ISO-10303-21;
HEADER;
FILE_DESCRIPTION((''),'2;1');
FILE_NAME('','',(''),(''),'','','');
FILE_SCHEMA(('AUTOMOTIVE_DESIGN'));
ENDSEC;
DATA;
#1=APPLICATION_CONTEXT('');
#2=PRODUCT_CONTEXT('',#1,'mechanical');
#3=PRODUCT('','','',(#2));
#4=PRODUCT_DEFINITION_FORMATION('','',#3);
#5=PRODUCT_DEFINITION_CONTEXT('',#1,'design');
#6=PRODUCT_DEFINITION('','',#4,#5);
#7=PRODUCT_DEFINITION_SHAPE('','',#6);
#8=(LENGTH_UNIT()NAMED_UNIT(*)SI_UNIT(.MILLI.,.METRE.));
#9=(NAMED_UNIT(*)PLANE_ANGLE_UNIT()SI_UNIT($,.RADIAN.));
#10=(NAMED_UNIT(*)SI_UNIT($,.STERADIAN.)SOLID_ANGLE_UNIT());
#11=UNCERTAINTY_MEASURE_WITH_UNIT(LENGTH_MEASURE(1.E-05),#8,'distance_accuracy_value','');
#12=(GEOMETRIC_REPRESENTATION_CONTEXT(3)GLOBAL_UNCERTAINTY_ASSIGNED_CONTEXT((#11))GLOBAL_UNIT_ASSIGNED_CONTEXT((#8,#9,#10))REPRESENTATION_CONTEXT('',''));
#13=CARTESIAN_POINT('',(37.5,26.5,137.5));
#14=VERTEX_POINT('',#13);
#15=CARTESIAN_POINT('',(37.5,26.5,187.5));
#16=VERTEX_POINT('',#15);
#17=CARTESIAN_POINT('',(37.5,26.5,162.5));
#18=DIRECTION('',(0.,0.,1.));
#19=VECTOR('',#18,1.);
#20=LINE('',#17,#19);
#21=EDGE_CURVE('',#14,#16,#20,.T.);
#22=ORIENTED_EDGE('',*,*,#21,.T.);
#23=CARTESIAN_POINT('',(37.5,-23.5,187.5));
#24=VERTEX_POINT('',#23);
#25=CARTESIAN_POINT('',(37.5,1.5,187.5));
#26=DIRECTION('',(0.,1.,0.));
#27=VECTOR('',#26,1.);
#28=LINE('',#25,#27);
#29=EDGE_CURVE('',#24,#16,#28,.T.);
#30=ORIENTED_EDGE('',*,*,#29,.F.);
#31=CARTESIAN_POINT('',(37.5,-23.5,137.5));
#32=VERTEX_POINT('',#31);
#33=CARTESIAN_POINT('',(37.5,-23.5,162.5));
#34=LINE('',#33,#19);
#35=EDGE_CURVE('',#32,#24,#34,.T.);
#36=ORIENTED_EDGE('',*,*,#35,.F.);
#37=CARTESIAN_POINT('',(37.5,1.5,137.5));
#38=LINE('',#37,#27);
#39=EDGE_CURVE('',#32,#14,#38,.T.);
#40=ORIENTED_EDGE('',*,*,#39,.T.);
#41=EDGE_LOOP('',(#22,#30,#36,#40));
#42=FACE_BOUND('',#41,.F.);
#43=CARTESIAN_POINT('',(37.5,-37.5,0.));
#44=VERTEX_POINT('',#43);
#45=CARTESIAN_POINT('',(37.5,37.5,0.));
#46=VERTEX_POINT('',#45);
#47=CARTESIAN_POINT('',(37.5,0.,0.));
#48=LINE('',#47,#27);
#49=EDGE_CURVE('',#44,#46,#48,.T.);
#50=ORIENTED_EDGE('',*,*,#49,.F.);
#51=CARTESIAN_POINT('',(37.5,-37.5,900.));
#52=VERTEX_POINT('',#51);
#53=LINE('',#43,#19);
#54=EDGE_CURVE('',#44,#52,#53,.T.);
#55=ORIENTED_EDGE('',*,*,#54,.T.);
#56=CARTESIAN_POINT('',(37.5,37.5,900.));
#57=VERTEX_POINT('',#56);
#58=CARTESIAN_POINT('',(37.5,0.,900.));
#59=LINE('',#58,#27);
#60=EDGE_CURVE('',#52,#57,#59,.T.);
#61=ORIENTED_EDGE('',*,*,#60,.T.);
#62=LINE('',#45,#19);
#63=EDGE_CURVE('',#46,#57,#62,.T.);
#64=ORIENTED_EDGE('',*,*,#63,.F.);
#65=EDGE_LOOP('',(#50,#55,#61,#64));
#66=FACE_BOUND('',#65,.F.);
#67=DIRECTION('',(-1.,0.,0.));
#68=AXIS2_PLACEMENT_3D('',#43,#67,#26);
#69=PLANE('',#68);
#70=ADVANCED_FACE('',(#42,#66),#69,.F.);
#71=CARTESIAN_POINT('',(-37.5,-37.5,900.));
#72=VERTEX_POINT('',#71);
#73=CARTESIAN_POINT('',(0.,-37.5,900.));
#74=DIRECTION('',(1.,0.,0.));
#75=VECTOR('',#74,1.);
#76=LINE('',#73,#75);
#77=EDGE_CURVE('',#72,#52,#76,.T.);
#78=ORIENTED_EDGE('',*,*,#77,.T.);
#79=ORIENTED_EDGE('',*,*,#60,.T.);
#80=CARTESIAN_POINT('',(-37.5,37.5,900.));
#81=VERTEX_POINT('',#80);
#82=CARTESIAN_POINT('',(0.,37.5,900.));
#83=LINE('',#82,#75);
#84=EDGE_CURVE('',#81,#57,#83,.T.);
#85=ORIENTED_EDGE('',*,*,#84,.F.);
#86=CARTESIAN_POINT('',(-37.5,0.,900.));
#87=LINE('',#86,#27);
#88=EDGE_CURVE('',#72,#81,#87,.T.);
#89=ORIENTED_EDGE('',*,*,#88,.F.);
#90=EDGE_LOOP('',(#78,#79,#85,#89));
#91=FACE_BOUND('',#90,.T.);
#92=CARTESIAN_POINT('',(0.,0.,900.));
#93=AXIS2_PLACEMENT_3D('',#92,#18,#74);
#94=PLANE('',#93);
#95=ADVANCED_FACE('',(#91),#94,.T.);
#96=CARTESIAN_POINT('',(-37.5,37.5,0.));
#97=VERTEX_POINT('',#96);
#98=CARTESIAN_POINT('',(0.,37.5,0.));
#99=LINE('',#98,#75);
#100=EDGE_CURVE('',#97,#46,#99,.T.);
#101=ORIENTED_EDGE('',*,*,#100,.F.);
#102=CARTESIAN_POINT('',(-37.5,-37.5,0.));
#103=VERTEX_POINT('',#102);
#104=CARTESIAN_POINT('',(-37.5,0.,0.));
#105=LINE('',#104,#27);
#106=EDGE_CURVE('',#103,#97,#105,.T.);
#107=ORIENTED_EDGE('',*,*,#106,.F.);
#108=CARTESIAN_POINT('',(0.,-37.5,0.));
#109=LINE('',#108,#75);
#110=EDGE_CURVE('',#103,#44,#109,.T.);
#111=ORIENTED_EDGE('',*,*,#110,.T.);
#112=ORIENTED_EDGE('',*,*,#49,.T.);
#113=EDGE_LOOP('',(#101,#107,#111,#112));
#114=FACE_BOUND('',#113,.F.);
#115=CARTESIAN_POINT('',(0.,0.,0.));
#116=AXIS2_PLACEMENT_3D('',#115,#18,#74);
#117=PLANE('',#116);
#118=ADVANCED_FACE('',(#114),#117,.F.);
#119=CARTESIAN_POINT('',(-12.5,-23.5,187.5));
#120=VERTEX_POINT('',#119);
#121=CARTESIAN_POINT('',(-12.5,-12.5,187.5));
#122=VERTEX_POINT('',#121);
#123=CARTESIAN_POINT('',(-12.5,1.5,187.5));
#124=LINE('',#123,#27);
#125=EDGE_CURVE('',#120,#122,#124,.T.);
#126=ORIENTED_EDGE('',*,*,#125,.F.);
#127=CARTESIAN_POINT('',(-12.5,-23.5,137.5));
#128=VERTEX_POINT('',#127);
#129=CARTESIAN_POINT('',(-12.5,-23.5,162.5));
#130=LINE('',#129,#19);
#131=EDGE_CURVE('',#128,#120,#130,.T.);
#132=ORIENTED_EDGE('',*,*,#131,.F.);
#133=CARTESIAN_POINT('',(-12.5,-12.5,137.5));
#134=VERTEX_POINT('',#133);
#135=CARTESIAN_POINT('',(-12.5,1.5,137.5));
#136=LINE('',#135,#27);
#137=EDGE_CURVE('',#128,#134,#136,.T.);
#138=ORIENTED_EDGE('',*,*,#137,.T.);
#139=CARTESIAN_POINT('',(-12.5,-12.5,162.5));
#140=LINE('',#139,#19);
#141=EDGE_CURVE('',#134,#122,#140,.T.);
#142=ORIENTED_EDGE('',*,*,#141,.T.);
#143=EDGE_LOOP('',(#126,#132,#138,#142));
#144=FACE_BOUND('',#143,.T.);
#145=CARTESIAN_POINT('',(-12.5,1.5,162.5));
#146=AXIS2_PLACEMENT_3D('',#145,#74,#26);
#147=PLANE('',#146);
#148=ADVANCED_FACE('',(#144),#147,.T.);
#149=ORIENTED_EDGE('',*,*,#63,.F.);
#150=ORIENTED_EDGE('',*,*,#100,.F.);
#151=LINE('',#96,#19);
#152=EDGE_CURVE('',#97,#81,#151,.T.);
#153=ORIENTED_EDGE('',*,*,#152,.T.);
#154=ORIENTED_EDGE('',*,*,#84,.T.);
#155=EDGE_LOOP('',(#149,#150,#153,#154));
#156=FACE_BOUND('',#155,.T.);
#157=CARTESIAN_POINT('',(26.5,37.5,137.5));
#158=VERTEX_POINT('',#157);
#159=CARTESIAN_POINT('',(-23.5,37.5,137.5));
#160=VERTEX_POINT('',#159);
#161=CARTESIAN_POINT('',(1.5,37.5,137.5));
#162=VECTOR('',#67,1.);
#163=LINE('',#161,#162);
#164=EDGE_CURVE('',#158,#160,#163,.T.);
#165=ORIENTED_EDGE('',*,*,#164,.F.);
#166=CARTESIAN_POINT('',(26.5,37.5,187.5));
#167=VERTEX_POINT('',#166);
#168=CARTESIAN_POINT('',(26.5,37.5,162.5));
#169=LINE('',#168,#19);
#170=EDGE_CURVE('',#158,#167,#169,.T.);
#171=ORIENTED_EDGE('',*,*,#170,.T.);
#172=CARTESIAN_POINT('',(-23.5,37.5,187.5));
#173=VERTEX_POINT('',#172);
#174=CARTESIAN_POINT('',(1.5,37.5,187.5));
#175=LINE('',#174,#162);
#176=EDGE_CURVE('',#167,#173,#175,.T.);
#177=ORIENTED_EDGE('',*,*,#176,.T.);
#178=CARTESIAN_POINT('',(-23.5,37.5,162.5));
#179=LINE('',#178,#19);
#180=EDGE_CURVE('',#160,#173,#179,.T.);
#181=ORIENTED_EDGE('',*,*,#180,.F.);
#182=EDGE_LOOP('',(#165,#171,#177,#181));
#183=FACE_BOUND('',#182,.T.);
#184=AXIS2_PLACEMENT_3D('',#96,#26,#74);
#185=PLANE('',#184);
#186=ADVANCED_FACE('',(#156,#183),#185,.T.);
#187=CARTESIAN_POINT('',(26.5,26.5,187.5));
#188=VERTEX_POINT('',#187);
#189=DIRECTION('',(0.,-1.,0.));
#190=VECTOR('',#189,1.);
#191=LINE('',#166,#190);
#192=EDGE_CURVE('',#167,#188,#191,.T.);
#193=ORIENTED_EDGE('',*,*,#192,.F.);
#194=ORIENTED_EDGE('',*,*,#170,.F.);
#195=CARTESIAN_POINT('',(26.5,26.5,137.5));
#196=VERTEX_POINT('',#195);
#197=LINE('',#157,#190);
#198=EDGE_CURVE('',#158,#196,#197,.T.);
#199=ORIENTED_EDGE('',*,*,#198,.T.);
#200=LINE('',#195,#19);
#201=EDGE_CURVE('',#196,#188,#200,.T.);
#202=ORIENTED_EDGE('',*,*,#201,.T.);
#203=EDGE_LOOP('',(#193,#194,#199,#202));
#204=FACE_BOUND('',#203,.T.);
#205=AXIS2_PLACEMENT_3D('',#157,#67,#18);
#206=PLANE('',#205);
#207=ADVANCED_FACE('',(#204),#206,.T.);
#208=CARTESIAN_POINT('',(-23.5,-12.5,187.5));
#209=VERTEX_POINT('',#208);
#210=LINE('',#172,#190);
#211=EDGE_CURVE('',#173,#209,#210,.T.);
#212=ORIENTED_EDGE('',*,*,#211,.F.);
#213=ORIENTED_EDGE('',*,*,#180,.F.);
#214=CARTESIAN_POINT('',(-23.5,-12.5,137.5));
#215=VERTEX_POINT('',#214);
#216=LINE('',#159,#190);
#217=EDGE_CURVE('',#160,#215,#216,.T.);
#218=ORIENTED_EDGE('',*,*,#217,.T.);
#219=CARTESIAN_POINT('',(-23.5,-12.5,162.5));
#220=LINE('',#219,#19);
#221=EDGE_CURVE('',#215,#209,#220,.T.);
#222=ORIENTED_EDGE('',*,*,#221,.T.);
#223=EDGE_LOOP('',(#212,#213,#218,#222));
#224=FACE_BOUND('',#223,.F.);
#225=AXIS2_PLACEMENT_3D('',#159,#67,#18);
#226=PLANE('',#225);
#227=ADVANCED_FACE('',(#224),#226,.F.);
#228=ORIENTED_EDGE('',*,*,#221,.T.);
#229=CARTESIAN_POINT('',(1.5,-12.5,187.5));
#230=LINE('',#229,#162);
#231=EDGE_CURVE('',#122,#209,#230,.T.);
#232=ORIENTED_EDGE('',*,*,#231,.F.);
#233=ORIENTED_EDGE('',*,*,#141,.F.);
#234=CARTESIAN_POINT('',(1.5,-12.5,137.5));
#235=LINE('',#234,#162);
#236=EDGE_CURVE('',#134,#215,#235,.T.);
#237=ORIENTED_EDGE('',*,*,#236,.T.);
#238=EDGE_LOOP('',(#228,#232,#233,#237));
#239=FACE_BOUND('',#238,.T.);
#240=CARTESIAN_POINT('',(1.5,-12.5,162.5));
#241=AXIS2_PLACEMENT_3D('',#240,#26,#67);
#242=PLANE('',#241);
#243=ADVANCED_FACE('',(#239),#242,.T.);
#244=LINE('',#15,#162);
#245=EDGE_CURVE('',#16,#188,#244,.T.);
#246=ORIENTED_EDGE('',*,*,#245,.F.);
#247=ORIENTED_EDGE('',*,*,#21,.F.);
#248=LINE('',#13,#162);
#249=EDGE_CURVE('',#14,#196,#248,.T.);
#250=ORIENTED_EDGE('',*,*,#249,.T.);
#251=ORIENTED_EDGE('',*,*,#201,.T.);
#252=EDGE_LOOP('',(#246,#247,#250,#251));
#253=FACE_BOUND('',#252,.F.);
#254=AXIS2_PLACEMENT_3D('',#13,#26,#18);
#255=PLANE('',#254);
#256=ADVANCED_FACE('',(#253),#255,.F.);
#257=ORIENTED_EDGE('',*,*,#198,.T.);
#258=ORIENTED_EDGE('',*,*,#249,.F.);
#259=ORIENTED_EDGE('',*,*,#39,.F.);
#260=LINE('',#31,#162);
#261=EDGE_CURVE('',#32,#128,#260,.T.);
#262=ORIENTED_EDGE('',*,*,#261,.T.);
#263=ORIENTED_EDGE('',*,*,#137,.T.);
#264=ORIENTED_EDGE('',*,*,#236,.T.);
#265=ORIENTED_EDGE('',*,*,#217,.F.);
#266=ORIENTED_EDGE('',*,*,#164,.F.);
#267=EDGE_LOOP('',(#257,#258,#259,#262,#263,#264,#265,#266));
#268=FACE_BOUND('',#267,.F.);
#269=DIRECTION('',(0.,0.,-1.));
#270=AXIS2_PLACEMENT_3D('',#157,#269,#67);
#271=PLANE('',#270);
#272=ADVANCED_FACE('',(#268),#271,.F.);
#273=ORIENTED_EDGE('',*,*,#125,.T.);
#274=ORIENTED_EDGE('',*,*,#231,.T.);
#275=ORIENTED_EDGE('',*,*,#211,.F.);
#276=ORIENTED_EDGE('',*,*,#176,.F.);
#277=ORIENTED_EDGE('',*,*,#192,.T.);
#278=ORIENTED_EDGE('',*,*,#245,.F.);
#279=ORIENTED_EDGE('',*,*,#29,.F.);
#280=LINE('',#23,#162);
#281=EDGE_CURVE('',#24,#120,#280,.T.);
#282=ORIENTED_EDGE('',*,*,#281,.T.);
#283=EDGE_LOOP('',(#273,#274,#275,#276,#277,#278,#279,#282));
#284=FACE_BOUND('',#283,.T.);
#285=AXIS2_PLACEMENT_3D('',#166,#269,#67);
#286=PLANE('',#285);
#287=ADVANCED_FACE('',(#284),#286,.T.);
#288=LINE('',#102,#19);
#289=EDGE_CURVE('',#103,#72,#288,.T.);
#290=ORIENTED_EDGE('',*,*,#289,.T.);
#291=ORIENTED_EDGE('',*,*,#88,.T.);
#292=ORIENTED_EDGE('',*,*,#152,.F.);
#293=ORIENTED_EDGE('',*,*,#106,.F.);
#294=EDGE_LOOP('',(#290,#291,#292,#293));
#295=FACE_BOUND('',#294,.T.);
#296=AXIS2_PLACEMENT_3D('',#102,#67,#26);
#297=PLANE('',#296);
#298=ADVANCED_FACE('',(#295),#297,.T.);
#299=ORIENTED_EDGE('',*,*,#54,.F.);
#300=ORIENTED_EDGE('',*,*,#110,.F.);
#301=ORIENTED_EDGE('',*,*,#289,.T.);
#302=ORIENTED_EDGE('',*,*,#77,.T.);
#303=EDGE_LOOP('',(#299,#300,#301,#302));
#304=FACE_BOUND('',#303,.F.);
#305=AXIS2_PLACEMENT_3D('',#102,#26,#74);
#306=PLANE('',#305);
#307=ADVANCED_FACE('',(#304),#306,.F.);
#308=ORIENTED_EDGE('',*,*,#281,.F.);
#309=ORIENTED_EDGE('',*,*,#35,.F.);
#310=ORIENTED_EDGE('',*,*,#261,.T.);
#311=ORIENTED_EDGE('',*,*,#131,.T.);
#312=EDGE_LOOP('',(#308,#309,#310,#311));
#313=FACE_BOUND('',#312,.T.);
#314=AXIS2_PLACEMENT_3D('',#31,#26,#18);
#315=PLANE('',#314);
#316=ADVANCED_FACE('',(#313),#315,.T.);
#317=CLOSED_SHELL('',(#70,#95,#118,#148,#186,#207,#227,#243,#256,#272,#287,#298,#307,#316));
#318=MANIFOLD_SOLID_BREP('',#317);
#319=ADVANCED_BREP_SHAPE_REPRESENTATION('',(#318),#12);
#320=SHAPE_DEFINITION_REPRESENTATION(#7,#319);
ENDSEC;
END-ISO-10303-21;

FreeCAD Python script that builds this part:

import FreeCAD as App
import Part
import Sketcher
Q = App.Units.Quantity

doc = App.newDocument("Part")
body = doc.addObject("PartDesign::Body", "Body")

# Sketch on XY plane
sketch1 = doc.addObject("Sketcher::SketchObject", "Sketch")
body.addObject(sketch1)
sketch1.AttachmentSupport = (doc.XY_Plane, [""])
sketch1.MapMode = "FlatFace"
sketch1.addGeometry([
    Part.LineSegment(App.Vector(-38, 38, 0), App.Vector(-38, -38, 0)),
    Part.LineSegment(App.Vector(-38, -38, 0), App.Vector(38, -38, 0)),
    Part.LineSegment(App.Vector(38, -38, 0), App.Vector(38, 38, 0)),
    Part.LineSegment(App.Vector(38, 38, 0), App.Vector(-38, 38, 0)),
], False)
sketch1.addConstraint([
    Sketcher.Constraint("Coincident", 0, 2, 1, 1),
    Sketcher.Constraint("Coincident", 1, 2, 2, 1),
    Sketcher.Constraint("Coincident", 2, 2, 3, 1),
    Sketcher.Constraint("Coincident", 3, 2, 0, 1),
    Sketcher.Constraint("Vertical", 0),
    Sketcher.Constraint("Horizontal", 1),
    Sketcher.Constraint("Vertical", 2),
    Sketcher.Constraint("Horizontal", 3),
    Sketcher.Constraint("Symmetric", 0, 2, 2, 2, -1, 1),
    Sketcher.Constraint("Equal", 3, 0),
    Sketcher.Constraint("DistanceX", 1, 1, 1, 2, Q("75 mm")),
])
pad1 = doc.addObject("PartDesign::Pad", "Pad")
body.addObject(pad1)
pad1.Profile = sketch1
pad1.Length = 900

# Sketch on YZ plane
sketch2 = doc.addObject("Sketcher::SketchObject", "Sketch001")
body.addObject(sketch2)
sketch2.AttachmentSupport = (doc.YZ_Plane, [""])
sketch2.MapMode = "FlatFace"
sketch2.AttachmentOffset = App.Placement(App.Vector(0, 0, 37.5), App.Rotation())
sketch2.addGeometry([
    Part.LineSegment(App.Vector(-24, 188, 0), App.Vector(-24, 138, 0)),
    Part.LineSegment(App.Vector(-24, 138, 0), App.Vector(26, 138, 0)),
    Part.LineSegment(App.Vector(26, 138, 0), App.Vector(26, 188, 0)),
    Part.LineSegment(App.Vector(26, 188, 0), App.Vector(-24, 188, 0)),
], False)
sketch2.addConstraint([
    Sketcher.Constraint("Coincident", 0, 2, 1, 1),
    Sketcher.Constraint("Coincident", 1, 2, 2, 1),
    Sketcher.Constraint("Coincident", 2, 2, 3, 1),
    Sketcher.Constraint("Coincident", 3, 2, 0, 1),
    Sketcher.Constraint("Vertical", 0),
    Sketcher.Constraint("Horizontal", 1),
    Sketcher.Constraint("Vertical", 2),
    Sketcher.Constraint("Horizontal", 3),
    Sketcher.Constraint("Equal", 3, 0),
    Sketcher.Constraint("DistanceX", 1, 1, 1, 2, Q("50 mm")),
    Sketcher.Constraint("DistanceX", 0, 2, -1, 1, Q("23.5 mm")),
    Sketcher.Constraint("DistanceY", -1, 1, 0, 2, Q("137.5 mm")),
])
pocket1 = doc.addObject("PartDesign::Pocket", "Pocket")
body.addObject(pocket1)
pocket1.Profile = sketch2
pocket1.Length = 50

# Sketch on XZ plane
sketch3 = doc.addObject("Sketcher::SketchObject", "Sketch002")
body.addObject(sketch3)
sketch3.AttachmentSupport = (doc.XZ_Plane, [""])
sketch3.MapMode = "FlatFace"
sketch3.AttachmentOffset = App.Placement(App.Vector(0, 0, -37.5), App.Rotation())
sketch3.addGeometry([
    Part.LineSegment(App.Vector(26, 188, 0), App.Vector(26, 138, 0)),
    Part.LineSegment(App.Vector(26, 138, 0), App.Vector(-24, 138, 0)),
    Part.LineSegment(App.Vector(-24, 138, 0), App.Vector(-24, 188, 0)),
    Part.LineSegment(App.Vector(-24, 188, 0), App.Vector(26, 188, 0)),
], False)
sketch3.addConstraint([
    Sketcher.Constraint("Coincident", 0, 2, 1, 1),
    Sketcher.Constraint("Coincident", 1, 2, 2, 1),
    Sketcher.Constraint("Coincident", 2, 2, 3, 1),
    Sketcher.Constraint("Coincident", 3, 2, 0, 1),
    Sketcher.Constraint("Vertical", 0),
    Sketcher.Constraint("Horizontal", 1),
    Sketcher.Constraint("Vertical", 2),
    Sketcher.Constraint("Horizontal", 3),
    Sketcher.Constraint("Equal", 3, 0),
    Sketcher.Constraint("DistanceX", 1, 2, 1, 1, Q("50 mm")),
    Sketcher.Constraint("DistanceX", -1, 1, 0, 2, Q("26.5 mm")),
    Sketcher.Constraint("DistanceY", -1, 1, 0, 2, Q("137.5 mm")),
])
pocket2 = doc.addObject("PartDesign::Pocket", "Pocket001")
body.addObject(pocket2)
pocket2.Profile = sketch3
pocket2.Length = 50
pocket2.Reversed = True

doc.recompute()
